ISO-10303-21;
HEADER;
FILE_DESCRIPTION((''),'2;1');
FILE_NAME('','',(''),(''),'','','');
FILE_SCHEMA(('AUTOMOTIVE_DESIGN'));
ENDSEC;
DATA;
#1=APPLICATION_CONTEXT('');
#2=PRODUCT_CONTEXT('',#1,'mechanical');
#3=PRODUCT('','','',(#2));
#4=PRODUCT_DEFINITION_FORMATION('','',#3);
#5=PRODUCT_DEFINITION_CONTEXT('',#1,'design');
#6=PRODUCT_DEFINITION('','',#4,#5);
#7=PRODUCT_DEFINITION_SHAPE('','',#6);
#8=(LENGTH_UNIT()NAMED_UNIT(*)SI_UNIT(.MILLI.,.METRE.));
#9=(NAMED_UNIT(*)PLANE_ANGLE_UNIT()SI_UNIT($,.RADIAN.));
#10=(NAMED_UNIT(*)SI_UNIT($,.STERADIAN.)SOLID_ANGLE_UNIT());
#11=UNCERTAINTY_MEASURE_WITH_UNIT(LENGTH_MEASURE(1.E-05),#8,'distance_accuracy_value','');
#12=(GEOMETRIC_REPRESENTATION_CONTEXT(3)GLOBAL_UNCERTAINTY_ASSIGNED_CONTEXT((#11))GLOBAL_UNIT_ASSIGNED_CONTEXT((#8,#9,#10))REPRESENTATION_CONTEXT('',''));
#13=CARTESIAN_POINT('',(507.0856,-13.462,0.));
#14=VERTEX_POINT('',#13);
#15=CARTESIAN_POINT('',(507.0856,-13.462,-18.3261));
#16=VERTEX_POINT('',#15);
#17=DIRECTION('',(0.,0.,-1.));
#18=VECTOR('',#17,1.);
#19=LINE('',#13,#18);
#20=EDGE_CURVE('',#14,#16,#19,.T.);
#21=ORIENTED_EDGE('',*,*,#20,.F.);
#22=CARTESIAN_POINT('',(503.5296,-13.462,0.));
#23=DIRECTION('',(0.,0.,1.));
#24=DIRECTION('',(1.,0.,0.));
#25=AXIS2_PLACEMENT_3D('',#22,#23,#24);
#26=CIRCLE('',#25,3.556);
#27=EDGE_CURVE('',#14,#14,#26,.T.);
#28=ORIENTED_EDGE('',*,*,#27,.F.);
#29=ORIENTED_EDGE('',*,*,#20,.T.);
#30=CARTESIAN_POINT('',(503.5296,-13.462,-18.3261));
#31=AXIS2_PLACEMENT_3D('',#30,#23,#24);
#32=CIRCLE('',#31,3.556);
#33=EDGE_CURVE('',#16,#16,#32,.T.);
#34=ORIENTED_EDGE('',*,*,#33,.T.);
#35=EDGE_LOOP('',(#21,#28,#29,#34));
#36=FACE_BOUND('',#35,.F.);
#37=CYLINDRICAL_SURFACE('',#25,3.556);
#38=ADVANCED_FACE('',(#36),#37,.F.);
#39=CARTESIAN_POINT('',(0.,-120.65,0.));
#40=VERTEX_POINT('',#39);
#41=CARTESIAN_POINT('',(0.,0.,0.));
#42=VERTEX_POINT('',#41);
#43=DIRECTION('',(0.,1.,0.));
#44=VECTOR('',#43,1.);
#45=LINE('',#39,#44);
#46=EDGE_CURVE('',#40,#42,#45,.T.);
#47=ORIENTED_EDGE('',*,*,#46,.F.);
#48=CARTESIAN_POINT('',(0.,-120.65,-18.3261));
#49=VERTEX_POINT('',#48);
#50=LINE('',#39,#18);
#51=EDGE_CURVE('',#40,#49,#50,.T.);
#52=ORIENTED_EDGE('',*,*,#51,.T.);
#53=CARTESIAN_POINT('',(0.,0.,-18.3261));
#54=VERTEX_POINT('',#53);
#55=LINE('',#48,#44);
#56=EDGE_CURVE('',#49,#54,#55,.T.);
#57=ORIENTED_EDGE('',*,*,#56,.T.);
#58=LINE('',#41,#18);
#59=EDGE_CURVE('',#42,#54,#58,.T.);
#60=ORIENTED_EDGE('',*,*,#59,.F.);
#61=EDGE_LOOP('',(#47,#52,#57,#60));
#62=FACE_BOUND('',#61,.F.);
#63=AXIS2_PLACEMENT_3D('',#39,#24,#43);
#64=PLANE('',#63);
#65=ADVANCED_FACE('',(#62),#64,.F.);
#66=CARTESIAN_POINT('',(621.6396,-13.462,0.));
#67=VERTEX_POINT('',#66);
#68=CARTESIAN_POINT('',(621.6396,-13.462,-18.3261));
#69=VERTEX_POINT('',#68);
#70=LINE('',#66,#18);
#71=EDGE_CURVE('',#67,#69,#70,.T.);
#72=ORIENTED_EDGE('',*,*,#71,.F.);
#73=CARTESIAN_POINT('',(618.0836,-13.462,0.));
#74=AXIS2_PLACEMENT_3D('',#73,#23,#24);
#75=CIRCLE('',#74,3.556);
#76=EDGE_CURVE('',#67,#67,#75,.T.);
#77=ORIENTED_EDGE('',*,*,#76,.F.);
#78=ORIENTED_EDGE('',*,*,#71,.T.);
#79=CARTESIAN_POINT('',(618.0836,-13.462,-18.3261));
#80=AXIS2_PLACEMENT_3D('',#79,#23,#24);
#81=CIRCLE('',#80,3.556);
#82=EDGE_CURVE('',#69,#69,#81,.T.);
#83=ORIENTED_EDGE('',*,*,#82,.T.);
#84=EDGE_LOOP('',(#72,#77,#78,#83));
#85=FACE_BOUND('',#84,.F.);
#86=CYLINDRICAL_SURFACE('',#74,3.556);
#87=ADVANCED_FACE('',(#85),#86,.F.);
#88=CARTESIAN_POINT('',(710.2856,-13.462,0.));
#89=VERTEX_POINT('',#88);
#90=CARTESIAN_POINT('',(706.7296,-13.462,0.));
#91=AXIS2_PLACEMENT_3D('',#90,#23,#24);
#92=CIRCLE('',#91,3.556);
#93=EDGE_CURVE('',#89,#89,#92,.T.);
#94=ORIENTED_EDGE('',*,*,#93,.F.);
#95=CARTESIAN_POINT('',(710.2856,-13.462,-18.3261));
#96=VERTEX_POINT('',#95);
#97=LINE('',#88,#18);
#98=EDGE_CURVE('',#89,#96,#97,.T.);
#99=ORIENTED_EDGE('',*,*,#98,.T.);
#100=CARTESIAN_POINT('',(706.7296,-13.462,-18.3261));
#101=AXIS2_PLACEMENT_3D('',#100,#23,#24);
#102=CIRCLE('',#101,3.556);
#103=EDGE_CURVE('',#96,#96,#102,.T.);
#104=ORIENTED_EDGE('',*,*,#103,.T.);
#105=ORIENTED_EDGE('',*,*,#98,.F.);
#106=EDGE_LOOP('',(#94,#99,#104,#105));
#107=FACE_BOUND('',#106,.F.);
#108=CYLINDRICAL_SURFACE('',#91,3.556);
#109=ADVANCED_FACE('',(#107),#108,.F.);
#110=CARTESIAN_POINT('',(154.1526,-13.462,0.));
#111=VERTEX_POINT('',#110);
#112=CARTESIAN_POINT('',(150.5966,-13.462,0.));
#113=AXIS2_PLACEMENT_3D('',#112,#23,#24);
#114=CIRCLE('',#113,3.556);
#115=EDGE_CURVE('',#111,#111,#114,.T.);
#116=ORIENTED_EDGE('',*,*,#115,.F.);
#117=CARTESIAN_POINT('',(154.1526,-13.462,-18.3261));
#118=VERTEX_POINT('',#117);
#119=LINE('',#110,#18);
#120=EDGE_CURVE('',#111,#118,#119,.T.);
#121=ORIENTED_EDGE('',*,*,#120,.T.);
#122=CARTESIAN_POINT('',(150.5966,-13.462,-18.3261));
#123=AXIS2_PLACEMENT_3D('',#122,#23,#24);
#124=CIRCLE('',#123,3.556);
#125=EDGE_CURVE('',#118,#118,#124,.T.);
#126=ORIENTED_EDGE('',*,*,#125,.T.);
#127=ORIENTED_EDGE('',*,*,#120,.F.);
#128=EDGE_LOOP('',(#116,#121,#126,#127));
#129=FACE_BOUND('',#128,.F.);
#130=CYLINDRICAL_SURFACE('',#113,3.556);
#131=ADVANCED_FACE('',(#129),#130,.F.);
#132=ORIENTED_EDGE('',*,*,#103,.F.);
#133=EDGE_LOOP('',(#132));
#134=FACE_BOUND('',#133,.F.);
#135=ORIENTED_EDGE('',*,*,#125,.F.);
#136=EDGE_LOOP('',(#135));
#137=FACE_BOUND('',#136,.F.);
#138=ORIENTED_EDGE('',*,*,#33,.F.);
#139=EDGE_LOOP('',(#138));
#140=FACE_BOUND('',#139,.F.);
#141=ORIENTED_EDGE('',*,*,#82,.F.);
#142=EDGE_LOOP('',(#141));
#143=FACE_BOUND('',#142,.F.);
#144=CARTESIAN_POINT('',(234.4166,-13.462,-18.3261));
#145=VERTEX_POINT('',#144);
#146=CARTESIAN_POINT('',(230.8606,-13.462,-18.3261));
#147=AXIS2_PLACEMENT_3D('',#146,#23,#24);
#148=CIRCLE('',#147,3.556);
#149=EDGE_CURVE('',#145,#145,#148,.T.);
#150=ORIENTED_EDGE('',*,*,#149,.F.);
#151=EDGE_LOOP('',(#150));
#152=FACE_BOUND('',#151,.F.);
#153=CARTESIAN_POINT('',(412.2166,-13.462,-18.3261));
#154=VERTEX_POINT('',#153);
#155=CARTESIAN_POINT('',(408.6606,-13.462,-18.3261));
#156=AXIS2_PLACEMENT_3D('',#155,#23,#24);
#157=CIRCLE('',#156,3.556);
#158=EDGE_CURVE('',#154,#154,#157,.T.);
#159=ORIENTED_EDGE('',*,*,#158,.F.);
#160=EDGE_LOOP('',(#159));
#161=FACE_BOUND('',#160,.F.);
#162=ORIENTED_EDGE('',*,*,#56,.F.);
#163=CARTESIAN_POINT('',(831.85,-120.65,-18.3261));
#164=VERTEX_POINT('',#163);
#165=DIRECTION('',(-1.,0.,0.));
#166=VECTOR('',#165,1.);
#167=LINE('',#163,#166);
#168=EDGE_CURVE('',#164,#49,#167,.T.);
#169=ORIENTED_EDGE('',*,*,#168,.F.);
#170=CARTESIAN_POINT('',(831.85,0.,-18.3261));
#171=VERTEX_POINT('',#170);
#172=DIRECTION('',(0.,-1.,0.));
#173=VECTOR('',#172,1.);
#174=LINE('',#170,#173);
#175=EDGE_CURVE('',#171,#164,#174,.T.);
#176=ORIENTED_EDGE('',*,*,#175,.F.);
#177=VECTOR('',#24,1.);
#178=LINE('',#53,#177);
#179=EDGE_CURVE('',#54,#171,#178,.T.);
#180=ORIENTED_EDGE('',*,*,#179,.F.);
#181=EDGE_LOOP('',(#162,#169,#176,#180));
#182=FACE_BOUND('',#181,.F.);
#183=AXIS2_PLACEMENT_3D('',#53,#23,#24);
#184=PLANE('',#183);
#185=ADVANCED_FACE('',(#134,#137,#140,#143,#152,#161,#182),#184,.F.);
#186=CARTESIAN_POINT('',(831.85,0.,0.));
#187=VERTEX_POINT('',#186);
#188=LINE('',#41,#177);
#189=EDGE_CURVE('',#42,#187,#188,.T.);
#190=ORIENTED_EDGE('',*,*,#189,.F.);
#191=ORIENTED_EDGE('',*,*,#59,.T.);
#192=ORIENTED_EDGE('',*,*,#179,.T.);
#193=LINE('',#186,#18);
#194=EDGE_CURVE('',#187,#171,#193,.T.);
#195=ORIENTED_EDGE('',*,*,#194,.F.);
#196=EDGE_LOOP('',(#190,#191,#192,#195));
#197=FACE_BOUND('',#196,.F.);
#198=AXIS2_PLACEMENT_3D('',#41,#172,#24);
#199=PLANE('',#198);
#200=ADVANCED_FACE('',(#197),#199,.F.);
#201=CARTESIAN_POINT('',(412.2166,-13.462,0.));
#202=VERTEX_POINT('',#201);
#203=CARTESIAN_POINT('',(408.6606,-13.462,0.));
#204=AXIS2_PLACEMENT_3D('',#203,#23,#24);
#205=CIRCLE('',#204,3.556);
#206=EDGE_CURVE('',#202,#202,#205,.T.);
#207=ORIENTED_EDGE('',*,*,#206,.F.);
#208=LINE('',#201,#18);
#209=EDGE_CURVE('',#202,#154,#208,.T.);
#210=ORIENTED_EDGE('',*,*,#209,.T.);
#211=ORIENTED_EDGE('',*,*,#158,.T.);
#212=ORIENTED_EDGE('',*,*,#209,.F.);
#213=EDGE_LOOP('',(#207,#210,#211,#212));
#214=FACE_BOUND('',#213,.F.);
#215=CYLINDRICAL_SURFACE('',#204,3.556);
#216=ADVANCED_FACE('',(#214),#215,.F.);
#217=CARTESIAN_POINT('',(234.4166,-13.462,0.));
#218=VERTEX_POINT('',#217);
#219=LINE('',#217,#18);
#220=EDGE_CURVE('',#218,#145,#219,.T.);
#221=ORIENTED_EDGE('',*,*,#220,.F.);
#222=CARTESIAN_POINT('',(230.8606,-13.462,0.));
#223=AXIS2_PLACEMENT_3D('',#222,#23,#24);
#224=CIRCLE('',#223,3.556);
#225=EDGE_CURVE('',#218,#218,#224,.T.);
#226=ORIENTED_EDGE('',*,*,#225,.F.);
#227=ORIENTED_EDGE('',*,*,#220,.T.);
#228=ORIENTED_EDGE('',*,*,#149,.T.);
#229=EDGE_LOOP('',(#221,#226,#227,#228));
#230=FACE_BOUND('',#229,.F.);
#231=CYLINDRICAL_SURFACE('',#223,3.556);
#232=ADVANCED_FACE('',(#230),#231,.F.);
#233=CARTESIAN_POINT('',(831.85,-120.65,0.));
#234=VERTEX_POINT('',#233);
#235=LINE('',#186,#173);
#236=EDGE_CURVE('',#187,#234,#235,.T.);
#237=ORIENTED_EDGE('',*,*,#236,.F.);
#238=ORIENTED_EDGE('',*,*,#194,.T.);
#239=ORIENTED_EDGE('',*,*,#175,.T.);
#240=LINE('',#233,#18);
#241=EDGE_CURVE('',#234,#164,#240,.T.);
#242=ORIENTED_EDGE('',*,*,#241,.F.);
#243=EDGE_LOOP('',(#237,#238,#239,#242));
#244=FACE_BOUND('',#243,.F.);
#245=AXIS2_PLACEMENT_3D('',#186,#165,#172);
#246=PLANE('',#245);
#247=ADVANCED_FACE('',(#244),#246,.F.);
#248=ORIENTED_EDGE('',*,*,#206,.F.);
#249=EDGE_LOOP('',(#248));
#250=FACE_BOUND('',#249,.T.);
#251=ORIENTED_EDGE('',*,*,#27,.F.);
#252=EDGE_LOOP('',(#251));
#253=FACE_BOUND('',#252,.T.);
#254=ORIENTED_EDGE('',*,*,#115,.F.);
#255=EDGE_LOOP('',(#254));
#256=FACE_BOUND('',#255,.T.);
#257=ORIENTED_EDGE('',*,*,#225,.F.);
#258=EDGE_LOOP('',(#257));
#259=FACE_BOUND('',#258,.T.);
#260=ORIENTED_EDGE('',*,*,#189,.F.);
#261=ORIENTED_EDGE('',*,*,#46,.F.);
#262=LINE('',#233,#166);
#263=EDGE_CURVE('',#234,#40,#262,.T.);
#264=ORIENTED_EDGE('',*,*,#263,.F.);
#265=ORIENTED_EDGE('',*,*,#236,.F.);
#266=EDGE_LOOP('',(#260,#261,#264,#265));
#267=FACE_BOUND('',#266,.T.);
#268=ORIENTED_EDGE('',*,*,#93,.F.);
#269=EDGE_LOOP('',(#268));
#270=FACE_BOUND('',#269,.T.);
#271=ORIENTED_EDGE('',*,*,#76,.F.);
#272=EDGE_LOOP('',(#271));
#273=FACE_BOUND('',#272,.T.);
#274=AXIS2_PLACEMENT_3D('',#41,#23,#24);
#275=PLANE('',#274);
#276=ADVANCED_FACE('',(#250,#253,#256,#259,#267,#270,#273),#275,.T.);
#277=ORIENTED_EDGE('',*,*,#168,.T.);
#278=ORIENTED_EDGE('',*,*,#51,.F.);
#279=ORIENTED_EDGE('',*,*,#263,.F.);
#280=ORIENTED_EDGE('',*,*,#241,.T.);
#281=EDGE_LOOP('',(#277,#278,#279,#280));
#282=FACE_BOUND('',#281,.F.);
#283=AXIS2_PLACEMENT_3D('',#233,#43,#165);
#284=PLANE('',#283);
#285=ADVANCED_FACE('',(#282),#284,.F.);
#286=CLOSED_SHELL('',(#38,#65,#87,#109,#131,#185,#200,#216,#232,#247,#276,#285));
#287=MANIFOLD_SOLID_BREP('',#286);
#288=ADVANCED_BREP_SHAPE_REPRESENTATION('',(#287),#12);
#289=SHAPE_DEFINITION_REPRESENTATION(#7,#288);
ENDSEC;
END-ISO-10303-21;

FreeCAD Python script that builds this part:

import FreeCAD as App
import Part
import Sketcher
Q = App.Units.Quantity

doc = App.newDocument("Part")
body = doc.addObject("PartDesign::Body", "Body")

# Sketch on XY plane
sketch1 = doc.addObject("Sketcher::SketchObject", "Sketch")
body.addObject(sketch1)
sketch1.AttachmentSupport = (doc.XY_Plane, [""])
sketch1.MapMode = "FlatFace"
sketch1.addGeometry(Part.LineSegment(App.Vector(831.9, 0, 0), App.Vector(0, 0, 0)), False)
sketch1.addGeometry(Part.LineSegment(App.Vector(0, 0, 0), App.Vector(0, -120.7, 0)), False)
sketch1.addGeometry(Part.LineSegment(App.Vector(0, -120.7, 0), App.Vector(831.9, -120.7, 0)), False)
sketch1.addGeometry(Part.LineSegment(App.Vector(831.9, -120.7, 0), App.Vector(831.9, 0, 0)), False)
sketch1.addGeometry(Part.Circle(App.Vector(150.6, -13.5, 0), App.Vector(0, 0, 1), 3.6), False)
sketch1.addGeometry(Part.Circle(App.Vector(230.9, -13.5, 0), App.Vector(0, 0, 1), 3.6), False)
sketch1.addGeometry(Part.Circle(App.Vector(408.7, -13.5, 0), App.Vector(0, 0, 1), 3.6), False)
sketch1.addGeometry(Part.Circle(App.Vector(503.5, -13.5, 0), App.Vector(0, 0, 1), 3.6), False)
sketch1.addGeometry(Part.Circle(App.Vector(618.1, -13.5, 0), App.Vector(0, 0, 1), 3.6), False)
sketch1.addGeometry(Part.Circle(App.Vector(706.7, -13.5, 0), App.Vector(0, 0, 1), 3.6), False)
sketch1.addConstraint(Sketcher.Constraint("Coincident", 0, 2, 1, 1))
sketch1.addConstraint(Sketcher.Constraint("Coincident", 1, 2, 2, 1))
sketch1.addConstraint(Sketcher.Constraint("Coincident", 2, 2, 3, 1))
sketch1.addConstraint(Sketcher.Constraint("Coincident", 3, 2, 0, 1))
sketch1.addConstraint(Sketcher.Constraint("Horizontal", 0))
sketch1.addConstraint(Sketcher.Constraint("Vertical", 1))
sketch1.addConstraint(Sketcher.Constraint("Horizontal", 2))
sketch1.addConstraint(Sketcher.Constraint("Vertical", 3))
sketch1.addConstraint(Sketcher.Constraint("Coincident", 0, 2, -1, 1))
sketch1.addConstraint(Sketcher.Constraint("Equal", 4, 5))
sketch1.addConstraint(Sketcher.Constraint("Equal", 5, 6))
sketch1.addConstraint(Sketcher.Constraint("Equal", 6, 7))
sketch1.addConstraint(Sketcher.Constraint("Equal", 7, 8))
sketch1.addConstraint(Sketcher.Constraint("Equal", 8, 9))
sketch1.addConstraint(Sketcher.Constraint("Horizontal", 4, 3, 5, 3))
sketch1.addConstraint(Sketcher.Constraint("Horizontal", 5, 3, 6, 3))
sketch1.addConstraint(Sketcher.Constraint("Horizontal", 6, 3, 7, 3))
sketch1.addConstraint(Sketcher.Constraint("Horizontal", 7, 3, 8, 3))
sketch1.addConstraint(Sketcher.Constraint("Horizontal", 8, 3, 9, 3))
sketch1.addConstraint(Sketcher.Constraint("Diameter", 4, Q("0.28 in")))
sketch1.addConstraint(Sketcher.Constraint("DistanceX", 5, 3, 6, 3, Q("7 in")))
sketch1.addConstraint(Sketcher.Constraint("DistanceX", 0, 2, 0, 1, Q("32.75 in")))
sketch1.addConstraint(Sketcher.Constraint("DistanceY", 1, 2, 1, 1, Q("4.75 in")))
sketch1.addConstraint(Sketcher.Constraint("DistanceX", 4, 3, 5, 3, Q("3.16 in")))
sketch1.addConstraint(Sketcher.Constraint("DistanceX", 7, 3, 8, 3, Q("4.51 in")))
sketch1.addConstraint(Sketcher.Constraint("DistanceX", 8, 3, 9, 3, Q("3.49 in")))
sketch1.addConstraint(Sketcher.Constraint("DistanceY", 1, 2, 4, 3, Q("4.22 in")))
sketch1.addConstraint(Sketcher.Constraint("DistanceX", -1, 1, 4, 3, Q("5.929 in")))
sketch1.addConstraint(Sketcher.Constraint("DistanceX", 6, 3, 7, 3, Q("3.735 in")))
pad1 = doc.addObject("PartDesign::Pad", "Pad")
body.addObject(pad1)
pad1.Profile = sketch1
pad1.Length = Q("0.7215 in")
pad1.Reversed = True

doc.recompute()
